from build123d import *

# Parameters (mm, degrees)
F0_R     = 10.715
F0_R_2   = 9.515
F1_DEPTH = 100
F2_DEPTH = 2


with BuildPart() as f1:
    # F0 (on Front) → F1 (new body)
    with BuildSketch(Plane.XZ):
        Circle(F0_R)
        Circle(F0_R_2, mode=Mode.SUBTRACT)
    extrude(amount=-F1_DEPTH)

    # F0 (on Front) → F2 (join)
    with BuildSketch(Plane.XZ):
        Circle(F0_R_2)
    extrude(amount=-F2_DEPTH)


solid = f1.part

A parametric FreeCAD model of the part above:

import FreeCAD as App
import Part
import Sketcher

V = App.Vector

doc = App.newDocument("Part")
body = doc.addObject("PartDesign::Body", "Body")

# Sketch on XZ plane
sketch1 = doc.addObject("Sketcher::SketchObject", "Sketch")
body.addObject(sketch1)
sketch1.AttachmentSupport = (doc.XZ_Plane, [""])
sketch1.MapMode = "FlatFace"
sketch1.addGeometry([
    Part.Circle(V(0, 0, 0), V(0, 0, 1), 10.715),
    Part.Circle(V(0, 0, 0), V(0, 0, 1), 9.515),
], False)
sketch1.addConstraint([
    Sketcher.Constraint("Coincident", 0, 3, -1, 1),
    Sketcher.Constraint("Coincident", 1, 3, -1, 1),
    Sketcher.Constraint("Diameter", 0, 21.43),
    Sketcher.Constraint("Diameter", 1, 19.03),
])
pad1 = doc.addObject("PartDesign::Pad", "Pad")
body.addObject(pad1)
pad1.Profile = sketch1
pad1.Length = 100
pad1.Reversed = True

# Sketch on XZ plane
sketch2 = doc.addObject("Sketcher::SketchObject", "Sketch001")
body.addObject(sketch2)
sketch2.AttachmentSupport = (doc.XZ_Plane, [""])
sketch2.MapMode = "FlatFace"
sketch2.addGeometry(Part.Circle(V(0, 0, 0), V(0, 0, 1), 9.515), False)
sketch2.addConstraint([
    Sketcher.Constraint("Coincident", 0, 3, -1, 1),
    Sketcher.Constraint("Diameter", 0, 19.03),
])
pad2 = doc.addObject("PartDesign::Pad", "Pad001")
body.addObject(pad2)
pad2.Profile = sketch2
pad2.Length = 2
pad2.Reversed = True

doc.recompute()
